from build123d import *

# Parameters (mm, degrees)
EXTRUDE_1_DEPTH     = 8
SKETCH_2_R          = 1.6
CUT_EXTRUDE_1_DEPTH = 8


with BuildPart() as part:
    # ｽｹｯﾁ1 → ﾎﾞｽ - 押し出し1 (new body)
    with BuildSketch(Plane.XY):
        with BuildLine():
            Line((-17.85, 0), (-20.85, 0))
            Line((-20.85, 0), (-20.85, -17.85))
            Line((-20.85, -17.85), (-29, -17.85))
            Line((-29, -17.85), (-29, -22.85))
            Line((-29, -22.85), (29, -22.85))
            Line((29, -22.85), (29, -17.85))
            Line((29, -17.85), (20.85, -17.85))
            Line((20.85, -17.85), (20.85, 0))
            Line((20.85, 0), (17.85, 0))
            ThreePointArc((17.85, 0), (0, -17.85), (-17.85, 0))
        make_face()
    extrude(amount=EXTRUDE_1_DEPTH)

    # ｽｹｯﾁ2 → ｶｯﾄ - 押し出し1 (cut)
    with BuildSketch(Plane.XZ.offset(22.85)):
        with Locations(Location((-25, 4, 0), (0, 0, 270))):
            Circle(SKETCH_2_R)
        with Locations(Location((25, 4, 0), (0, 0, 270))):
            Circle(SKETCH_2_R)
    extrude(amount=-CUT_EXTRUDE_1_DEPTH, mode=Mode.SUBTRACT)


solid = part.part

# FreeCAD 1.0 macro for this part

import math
import FreeCAD as App
import Part
import Sketcher

V = App.Vector
Q = App.Units.Quantity

doc = App.newDocument("Part")
body = doc.addObject("PartDesign::Body", "Body")

# Sketch on XY plane
sketch1 = body.newObject("Sketcher::SketchObject", "Sketch")
sketch1.AttachmentSupport = (doc.getObject("XY_Plane"), [""])
sketch1.MapMode = "FlatFace"
sketch1.addGeometry(Part.LineSegment(V(-17.85, 0, 0), V(-20.85, 0, 0)), False)
sketch1.addGeometry(Part.LineSegment(V(-20.85, 0, 0), V(-20.85, -17.85, 0)), False)
sketch1.addGeometry(Part.LineSegment(V(-20.85, -17.85, 0), V(-29, -17.85, 0)), False)
sketch1.addGeometry(Part.LineSegment(V(-29, -17.85, 0), V(-29, -22.85, 0)), False)
sketch1.addGeometry(Part.LineSegment(V(-29, -22.85, 0), V(29, -22.85, 0)), False)
sketch1.addGeometry(Part.LineSegment(V(29, -22.85, 0), V(29, -17.85, 0)), False)
sketch1.addGeometry(Part.LineSegment(V(29, -17.85, 0), V(20.85, -17.85, 0)), False)
sketch1.addGeometry(Part.LineSegment(V(20.85, -17.85, 0), V(20.85, 0, 0)), False)
sketch1.addGeometry(Part.LineSegment(V(20.85, 0, 0), V(17.85, 0, 0)), False)
sketch1.addGeometry(Part.ArcOfCircle(Part.Circle(V(0, 0, 0), V(0, 0, 1), 17.85), math.radians(180), math.radians(360)), False)
sketch1.addConstraint(Sketcher.Constraint("Coincident", 0, 2, 1, 1))
sketch1.addConstraint(Sketcher.Constraint("Coincident", 1, 2, 2, 1))
sketch1.addConstraint(Sketcher.Constraint("Coincident", 2, 2, 3, 1))
sketch1.addConstraint(Sketcher.Constraint("Coincident", 3, 2, 4, 1))
sketch1.addConstraint(Sketcher.Constraint("Coincident", 4, 2, 5, 1))
sketch1.addConstraint(Sketcher.Constraint("Coincident", 5, 2, 6, 1))
sketch1.addConstraint(Sketcher.Constraint("Coincident", 6, 2, 7, 1))
sketch1.addConstraint(Sketcher.Constraint("Coincident", 7, 2, 8, 1))
sketch1.addConstraint(Sketcher.Constraint("Coincident", 8, 2, 9, 2))
sketch1.addConstraint(Sketcher.Constraint("Coincident", 9, 1, 0, 1))
sketch1.addConstraint(Sketcher.Constraint("Horizontal", 0))
sketch1.addConstraint(Sketcher.Constraint("Vertical", 1))
sketch1.addConstraint(Sketcher.Constraint("Horizontal", 2))
sketch1.addConstraint(Sketcher.Constraint("Vertical", 3))
sketch1.addConstraint(Sketcher.Constraint("Horizontal", 4))
sketch1.addConstraint(Sketcher.Constraint("Vertical", 5))
sketch1.addConstraint(Sketcher.Constraint("Horizontal", 6))
sketch1.addConstraint(Sketcher.Constraint("Vertical", 7))
sketch1.addConstraint(Sketcher.Constraint("Horizontal", 8))
sketch1.addConstraint(Sketcher.Constraint("Coincident", 9, 3, -1, 1))
sketch1.addConstraint(Sketcher.Constraint("Symmetric", 0, 2, 7, 2, -1, 1))
sketch1.addConstraint(Sketcher.Constraint("Symmetric", 2, 2, 5, 2, -2))
sketch1.addConstraint(Sketcher.Constraint("PointOnObject", 0, 2, -1))
sketch1.addConstraint(Sketcher.Constraint("DistanceX", 0, 2, 0, 1, Q("3 mm")))
sketch1.addConstraint(Sketcher.Constraint("DistanceX", 4, 1, 4, 2, Q("58 mm")))
sketch1.addConstraint(Sketcher.Constraint("DistanceY", 3, 2, 3, 1, Q("5 mm")))
sketch1.addConstraint(Sketcher.Constraint("Radius", 9, Q("17.85 mm")))
sketch1.addConstraint(Sketcher.Constraint("DistanceY", 1, 2, 1, 1, Q("17.85 mm")))
pad1 = body.newObject("PartDesign::Pad", "Pad")
pad1.Profile = sketch1
pad1.Length = 8

# Sketch on XZ plane
sketch2 = body.newObject("Sketcher::SketchObject", "Sketch001")
sketch2.AttachmentSupport = (doc.getObject("XZ_Plane"), [""])
sketch2.MapMode = "FlatFace"
sketch2.AttachmentOffset = App.Placement(V(0, 0, 22.85), App.Rotation())
sketch2.addGeometry(Part.Circle(V(-25, 4, 0), V(0, 0, 1), 1.6), False)
sketch2.addGeometry(Part.Circle(V(25, 4, 0), V(0, 0, 1), 1.6), False)
sketch2.addConstraint(Sketcher.Constraint("Equal", 0, 1))
sketch2.addConstraint(Sketcher.Constraint("Symmetric", 0, 3, 1, 3, -2))
sketch2.addConstraint(Sketcher.Constraint("Diameter", 0, Q("3.2 mm")))
sketch2.addConstraint(Sketcher.Constraint("DistanceX", 0, 3, -1, 1, Q("25 mm")))
sketch2.addConstraint(Sketcher.Constraint("DistanceY", -1, 1, 0, 3, Q("4 mm")))
pocket1 = body.newObject("PartDesign::Pocket", "Pocket")
pocket1.Profile = sketch2
pocket1.Length = 8

doc.recompute()
